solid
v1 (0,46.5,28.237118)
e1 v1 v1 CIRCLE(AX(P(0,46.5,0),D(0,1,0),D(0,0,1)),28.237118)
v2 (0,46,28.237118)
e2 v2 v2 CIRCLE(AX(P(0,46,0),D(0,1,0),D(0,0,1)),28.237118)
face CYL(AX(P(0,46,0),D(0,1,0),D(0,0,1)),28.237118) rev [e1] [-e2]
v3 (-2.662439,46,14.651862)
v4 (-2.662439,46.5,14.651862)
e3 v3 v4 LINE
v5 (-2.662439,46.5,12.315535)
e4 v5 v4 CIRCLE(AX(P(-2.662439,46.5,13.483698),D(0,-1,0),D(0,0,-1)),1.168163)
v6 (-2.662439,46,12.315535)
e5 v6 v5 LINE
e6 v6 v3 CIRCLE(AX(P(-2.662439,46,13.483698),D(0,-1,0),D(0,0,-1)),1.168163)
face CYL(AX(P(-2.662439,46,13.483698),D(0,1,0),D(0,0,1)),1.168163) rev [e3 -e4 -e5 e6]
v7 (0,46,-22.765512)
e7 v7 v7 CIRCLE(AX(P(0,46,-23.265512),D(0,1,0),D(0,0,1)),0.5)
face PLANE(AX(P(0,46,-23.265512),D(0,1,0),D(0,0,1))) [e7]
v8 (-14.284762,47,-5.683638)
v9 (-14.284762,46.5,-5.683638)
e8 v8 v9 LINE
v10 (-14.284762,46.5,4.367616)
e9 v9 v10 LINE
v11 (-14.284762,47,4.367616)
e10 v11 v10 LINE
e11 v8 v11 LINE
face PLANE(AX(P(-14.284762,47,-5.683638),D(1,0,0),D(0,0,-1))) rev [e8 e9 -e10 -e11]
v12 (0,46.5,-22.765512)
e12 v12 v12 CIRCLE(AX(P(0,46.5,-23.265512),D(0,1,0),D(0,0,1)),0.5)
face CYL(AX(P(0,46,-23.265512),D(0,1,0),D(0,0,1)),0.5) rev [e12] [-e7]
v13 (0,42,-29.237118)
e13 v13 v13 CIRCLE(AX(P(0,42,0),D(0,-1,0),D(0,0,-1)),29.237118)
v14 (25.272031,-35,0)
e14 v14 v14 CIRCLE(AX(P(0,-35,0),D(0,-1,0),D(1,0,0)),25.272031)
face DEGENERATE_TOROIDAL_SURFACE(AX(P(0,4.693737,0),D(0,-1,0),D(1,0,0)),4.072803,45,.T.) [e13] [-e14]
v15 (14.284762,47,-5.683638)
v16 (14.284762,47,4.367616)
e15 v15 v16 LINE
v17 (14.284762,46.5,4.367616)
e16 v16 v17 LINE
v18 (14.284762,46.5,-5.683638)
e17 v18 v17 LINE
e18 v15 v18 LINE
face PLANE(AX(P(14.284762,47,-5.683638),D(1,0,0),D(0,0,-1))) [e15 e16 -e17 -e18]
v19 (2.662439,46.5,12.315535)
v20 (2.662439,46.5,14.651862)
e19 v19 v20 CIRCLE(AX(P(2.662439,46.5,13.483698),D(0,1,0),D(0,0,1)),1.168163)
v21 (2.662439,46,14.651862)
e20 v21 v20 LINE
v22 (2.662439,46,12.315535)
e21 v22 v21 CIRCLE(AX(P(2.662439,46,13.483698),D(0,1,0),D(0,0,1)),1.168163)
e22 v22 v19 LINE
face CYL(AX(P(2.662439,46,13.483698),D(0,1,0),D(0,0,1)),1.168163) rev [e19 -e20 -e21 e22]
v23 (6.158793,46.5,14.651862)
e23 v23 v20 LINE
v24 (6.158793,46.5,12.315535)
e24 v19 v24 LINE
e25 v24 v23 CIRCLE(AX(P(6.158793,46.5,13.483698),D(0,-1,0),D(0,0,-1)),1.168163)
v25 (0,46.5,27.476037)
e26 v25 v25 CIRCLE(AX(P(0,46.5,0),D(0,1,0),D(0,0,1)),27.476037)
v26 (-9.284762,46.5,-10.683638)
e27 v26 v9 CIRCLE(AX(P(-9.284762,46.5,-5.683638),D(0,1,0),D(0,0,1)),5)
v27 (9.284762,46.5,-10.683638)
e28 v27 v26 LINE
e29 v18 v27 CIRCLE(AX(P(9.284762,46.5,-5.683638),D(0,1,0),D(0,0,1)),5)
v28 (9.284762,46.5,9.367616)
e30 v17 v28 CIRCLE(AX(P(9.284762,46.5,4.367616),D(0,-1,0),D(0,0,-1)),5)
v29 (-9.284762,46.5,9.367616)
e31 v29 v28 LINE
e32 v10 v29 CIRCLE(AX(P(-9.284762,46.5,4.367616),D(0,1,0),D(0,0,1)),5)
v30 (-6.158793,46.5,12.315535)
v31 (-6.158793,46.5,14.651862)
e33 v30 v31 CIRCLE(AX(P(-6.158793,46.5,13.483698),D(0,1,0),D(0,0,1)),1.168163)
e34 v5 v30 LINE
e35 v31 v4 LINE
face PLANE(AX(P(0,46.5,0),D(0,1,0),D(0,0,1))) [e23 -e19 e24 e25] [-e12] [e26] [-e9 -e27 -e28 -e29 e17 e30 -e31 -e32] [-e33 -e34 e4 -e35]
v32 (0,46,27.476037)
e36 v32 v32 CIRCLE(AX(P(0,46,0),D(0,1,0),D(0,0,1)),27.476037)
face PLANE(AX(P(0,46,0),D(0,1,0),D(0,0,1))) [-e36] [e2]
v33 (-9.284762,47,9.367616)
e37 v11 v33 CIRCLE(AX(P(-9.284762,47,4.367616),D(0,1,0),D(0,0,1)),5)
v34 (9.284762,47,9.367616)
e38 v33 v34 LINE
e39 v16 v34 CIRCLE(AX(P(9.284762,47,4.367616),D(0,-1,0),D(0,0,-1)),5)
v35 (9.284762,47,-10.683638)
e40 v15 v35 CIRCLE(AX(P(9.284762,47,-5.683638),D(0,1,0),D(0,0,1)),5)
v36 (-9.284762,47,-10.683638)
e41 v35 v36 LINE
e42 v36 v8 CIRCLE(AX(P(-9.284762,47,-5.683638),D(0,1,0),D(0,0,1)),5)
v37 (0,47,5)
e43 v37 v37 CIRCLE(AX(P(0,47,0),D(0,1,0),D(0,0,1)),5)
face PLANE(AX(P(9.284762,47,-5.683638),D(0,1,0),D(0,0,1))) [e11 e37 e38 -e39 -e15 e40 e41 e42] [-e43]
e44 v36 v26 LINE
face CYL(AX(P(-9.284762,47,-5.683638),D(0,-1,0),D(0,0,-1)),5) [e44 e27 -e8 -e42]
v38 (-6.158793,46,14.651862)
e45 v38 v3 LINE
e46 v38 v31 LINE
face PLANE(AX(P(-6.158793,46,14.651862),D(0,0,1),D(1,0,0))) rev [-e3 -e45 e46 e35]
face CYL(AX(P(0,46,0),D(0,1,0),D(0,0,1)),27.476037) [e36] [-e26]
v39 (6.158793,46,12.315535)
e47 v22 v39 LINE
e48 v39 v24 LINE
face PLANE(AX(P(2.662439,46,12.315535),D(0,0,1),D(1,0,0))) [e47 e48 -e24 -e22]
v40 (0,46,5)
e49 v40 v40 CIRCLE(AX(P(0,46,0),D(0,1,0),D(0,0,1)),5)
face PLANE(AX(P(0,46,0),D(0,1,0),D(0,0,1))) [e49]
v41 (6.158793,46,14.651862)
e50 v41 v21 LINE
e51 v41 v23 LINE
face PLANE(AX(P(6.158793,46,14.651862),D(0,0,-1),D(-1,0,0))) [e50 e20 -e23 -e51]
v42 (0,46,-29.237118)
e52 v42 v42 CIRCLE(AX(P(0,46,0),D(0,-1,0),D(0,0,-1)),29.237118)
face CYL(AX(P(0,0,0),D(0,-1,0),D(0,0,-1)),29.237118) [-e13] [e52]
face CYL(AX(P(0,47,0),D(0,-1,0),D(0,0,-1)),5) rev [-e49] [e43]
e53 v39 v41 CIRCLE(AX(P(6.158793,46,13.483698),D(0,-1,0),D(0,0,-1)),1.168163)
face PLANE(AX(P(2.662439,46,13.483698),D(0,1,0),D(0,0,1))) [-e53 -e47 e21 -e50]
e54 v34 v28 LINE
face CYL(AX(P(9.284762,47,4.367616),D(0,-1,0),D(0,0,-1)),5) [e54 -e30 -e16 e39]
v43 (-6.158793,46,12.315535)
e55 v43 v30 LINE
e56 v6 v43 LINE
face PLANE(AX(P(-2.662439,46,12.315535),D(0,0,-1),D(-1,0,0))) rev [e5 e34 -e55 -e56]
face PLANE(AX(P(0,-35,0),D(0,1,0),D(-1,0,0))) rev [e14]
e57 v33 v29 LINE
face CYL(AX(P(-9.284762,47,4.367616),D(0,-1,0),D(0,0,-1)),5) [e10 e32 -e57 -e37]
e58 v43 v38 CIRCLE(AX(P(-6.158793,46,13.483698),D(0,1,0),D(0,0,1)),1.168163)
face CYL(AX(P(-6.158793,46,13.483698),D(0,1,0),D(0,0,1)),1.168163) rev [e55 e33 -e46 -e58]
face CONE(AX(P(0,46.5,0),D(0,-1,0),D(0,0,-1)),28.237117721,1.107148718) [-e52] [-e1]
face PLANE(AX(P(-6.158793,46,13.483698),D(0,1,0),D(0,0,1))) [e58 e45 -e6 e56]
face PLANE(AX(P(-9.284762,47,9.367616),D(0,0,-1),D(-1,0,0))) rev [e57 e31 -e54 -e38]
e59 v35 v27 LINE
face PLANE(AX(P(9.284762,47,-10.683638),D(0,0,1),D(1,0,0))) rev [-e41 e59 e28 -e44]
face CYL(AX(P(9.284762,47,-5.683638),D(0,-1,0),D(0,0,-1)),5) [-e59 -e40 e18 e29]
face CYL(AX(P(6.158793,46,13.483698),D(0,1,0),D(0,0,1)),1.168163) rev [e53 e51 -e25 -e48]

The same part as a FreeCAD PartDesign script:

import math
import FreeCAD as App
import Part
import Sketcher
Q = App.Units.Quantity


def add_polygon(sketch, points):
    """Adds a closed chain of lines whose ends are joined by coincident constraints."""
    first, n = sketch.GeometryCount, len(points)
    for a, b in zip(points, points[1:] + points[:1]):
        sketch.addGeometry(Part.LineSegment(App.Vector(*a, 0), App.Vector(*b, 0)), False)
    for i in range(n):
        sketch.addConstraint(Sketcher.Constraint("Coincident", first + i, 2, first + (i + 1) % n, 1))

doc = App.newDocument("Part")
body = doc.addObject("PartDesign::Body", "Body")

# Sketch on XY plane
sketch1 = doc.addObject("Sketcher::SketchObject", "Sketch")
body.addObject(sketch1)
sketch1.AttachmentSupport = (doc.XY_Plane, [""])
sketch1.MapMode = "FlatFace"
sketch1.addGeometry(Part.LineSegment(App.Vector(0, -35, 0), App.Vector(0, 50, 0)), False)
sketch1.addGeometry(Part.ArcOfCircle(Part.Circle(App.Vector(-4, 5, 0), App.Vector(0, 0, 1), 45), math.radians(85), math.radians(242)), False)
sketch1.addGeometry(Part.LineSegment(App.Vector(-25, -35, 0), App.Vector(0, -35, 0)), False)
sketch1.addConstraint(Sketcher.Constraint("Coincident", 0, 2, 1, 1))
sketch1.addConstraint(Sketcher.Constraint("Coincident", 1, 2, 2, 1))
sketch1.addConstraint(Sketcher.Constraint("Coincident", 2, 2, 0, 1))
sketch1.addConstraint(Sketcher.Constraint("Vertical", 0))
sketch1.addConstraint(Sketcher.Constraint("Horizontal", 2))
sketch1.addConstraint(Sketcher.Constraint("PointOnObject", 0, 2, -2))
sketch1.addConstraint(Sketcher.Constraint("Radius", 1, Q("45 mm")))
sketch1.addConstraint(Sketcher.Constraint("DistanceY", 1, 2, -1, 1, Q("35 mm")))
sketch1.addConstraint(Sketcher.Constraint("DistanceX", 2, 1, 2, 2, Q("25.272031 mm")))
sketch1.addConstraint(Sketcher.Constraint("DistanceY", 0, 1, 0, 2, Q("84.50905 mm")))
revolution = doc.addObject("PartDesign::Revolution", "Revolution")
body.addObject(revolution)
revolution.Profile = sketch1
revolution.ReferenceAxis = (sketch1, ["V_Axis"])
revolution.Angle = 360

# Sketch on XY plane
sketch2 = doc.addObject("Sketcher::SketchObject", "Sketch001")
body.addObject(sketch2)
sketch2.AttachmentSupport = (doc.XY_Plane, [""])
sketch2.MapMode = "FlatFace"
add_polygon(sketch2, [(58, 42), (58, 50), (-50, 50), (-50, 42)])  # lines 0-3
sketch2.addConstraint(Sketcher.Constraint("Vertical", 0))
sketch2.addConstraint(Sketcher.Constraint("Horizontal", 1))
sketch2.addConstraint(Sketcher.Constraint("Vertical", 2))
sketch2.addConstraint(Sketcher.Constraint("Horizontal", 3))
sketch2.addConstraint(Sketcher.Constraint("DistanceY", 0, 1, 0, 2, Q("8 mm")))
sketch2.addConstraint(Sketcher.Constraint("DistanceY", -1, 1, 0, 2, Q("50 mm")))
sketch2.addConstraint(Sketcher.Constraint("DistanceX", 1, 2, 1, 1, Q("107.142375 mm")))
sketch2.addConstraint(Sketcher.Constraint("DistanceX", -1, 1, 0, 2, Q("57.527772 mm")))
pocket1 = doc.addObject("PartDesign::Pocket", "Pocket")
body.addObject(pocket1)
pocket1.Profile = sketch2
pocket1.Type = "ThroughAll"
pocket1.Midplane = True

# Sketch on XY plane
sketch3 = doc.addObject("Sketcher::SketchObject", "Sketch002")
body.addObject(sketch3)
sketch3.AttachmentSupport = (doc.XY_Plane, [""])
sketch3.MapMode = "FlatFace"
add_polygon(sketch3, [(-29.2, 46), (-29.2, 42), (-28.2, 42), (-28.2, 46.5)])  # lines 0-3
sketch3.addConstraint(Sketcher.Constraint("Vertical", 0))
sketch3.addConstraint(Sketcher.Constraint("Horizontal", 1))
sketch3.addConstraint(Sketcher.Constraint("Vertical", 2))
sketch3.addConstraint(Sketcher.Constraint("DistanceX", 1, 1, 1, 2, Q("1 mm")))
sketch3.addConstraint(Sketcher.Constraint("DistanceY", 0, 2, 0, 1, Q("4 mm")))
sketch3.addConstraint(Sketcher.Constraint("DistanceY", 2, 1, 2, 2, Q("4.5 mm")))
sketch3.addConstraint(Sketcher.Constraint("DistanceY", -1, 1, 0, 2, Q("42 mm")))
sketch3.addConstraint(Sketcher.Constraint("DistanceX", 0, 2, -1, 1, Q("29.237118 mm")))
revolution2 = doc.addObject("PartDesign::Revolution", "Revolution001")
body.addObject(revolution2)
revolution2.Profile = sketch3
revolution2.ReferenceAxis = (sketch3, ["V_Axis"])
revolution2.Angle = 360

# Sketch on XZ plane
sketch4 = doc.addObject("Sketcher::SketchObject", "Sketch003")
body.addObject(sketch4)
sketch4.AttachmentSupport = (doc.XZ_Plane, [""])
sketch4.MapMode = "FlatFace"
sketch4.AttachmentOffset = App.Placement(App.Vector(0, 0, -42), App.Rotation())
sketch4.addGeometry(Part.Circle(App.Vector(0, 0, 0), App.Vector(0, 0, 1), 28), False)
sketch4.addConstraint(Sketcher.Constraint("Coincident", 0, 3, -1, 1))
sketch4.addConstraint(Sketcher.Constraint("Diameter", 0, Q("56.474235 mm")))
pad1 = doc.addObject("PartDesign::Pad", "Pad")
body.addObject(pad1)
pad1.Profile = sketch4
pad1.Length = 4.5
pad1.Reversed = True

# Sketch on XZ plane
sketch5 = doc.addObject("Sketcher::SketchObject", "Sketch004")
body.addObject(sketch5)
sketch5.AttachmentSupport = (doc.XZ_Plane, [""])
sketch5.MapMode = "FlatFace"
sketch5.AttachmentOffset = App.Placement(App.Vector(0, 0, -46.5), App.Rotation())
sketch5.addGeometry(Part.Circle(App.Vector(0, 0, 0), App.Vector(0, 0, 1), 28), False)
sketch5.addGeometry(Part.Circle(App.Vector(0, 0, 0), App.Vector(0, 0, 1), 27), False)
sketch5.addConstraint(Sketcher.Constraint("Coincident", 0, 3, -1, 1))
sketch5.addConstraint(Sketcher.Constraint("Coincident", 1, 3, -1, 1))
sketch5.addConstraint(Sketcher.Constraint("Diameter", 0, Q("56.474235 mm")))
sketch5.addConstraint(Sketcher.Constraint("Diameter", 1, Q("54.952075 mm")))
pocket2 = doc.addObject("PartDesign::Pocket", "Pocket001")
body.addObject(pocket2)
pocket2.Profile = sketch5
pocket2.Length = 0.5
pocket2.Reversed = True

# Sketch on XZ plane
sketch6 = doc.addObject("Sketcher::SketchObject", "Sketch005")
body.addObject(sketch6)
sketch6.AttachmentSupport = (doc.XZ_Plane, [""])
sketch6.MapMode = "FlatFace"
sketch6.AttachmentOffset = App.Placement(App.Vector(0, 0, -46.5), App.Rotation())
sketch6.addGeometry(Part.LineSegment(App.Vector(-2.7, 12.3, 0), App.Vector(-6.2, 12.3, 0)), False)
sketch6.addGeometry(Part.ArcOfCircle(Part.Circle(App.Vector(-6.2, 13.5, 0), App.Vector(0, 0, 1), 1.2), math.radians(90), math.radians(270)), False)
sketch6.addGeometry(Part.LineSegment(App.Vector(-6.2, 14.7, 0), App.Vector(-2.7, 14.7, 0)), False)
sketch6.addGeometry(Part.ArcOfCircle(Part.Circle(App.Vector(-2.7, 13.5, 0), App.Vector(0, 0, 1), 1.2), math.radians(-90), math.radians(90)), False)
sketch6.addConstraint(Sketcher.Constraint("Tangent", 0, 2, 1, 2))
sketch6.addConstraint(Sketcher.Constraint("Tangent", 1, 1, 2, 1))
sketch6.addConstraint(Sketcher.Constraint("Tangent", 2, 2, 3, 2))
sketch6.addConstraint(Sketcher.Constraint("Tangent", 3, 1, 0, 1))
sketch6.addConstraint(Sketcher.Constraint("Horizontal", 0))
sketch6.addConstraint(Sketcher.Constraint("Horizontal", 2))
sketch6.addConstraint(Sketcher.Constraint("Radius", 1, Q("1.168163 mm")))
sketch6.addConstraint(Sketcher.Constraint("DistanceY", -1, 1, 1, 3, Q("13.483698 mm")))
sketch6.addConstraint(Sketcher.Constraint("DistanceX", 0, 2, 0, 1, Q("3.496354 mm")))
sketch6.addConstraint(Sketcher.Constraint("DistanceX", 3, 3, -1, 1, Q("2.662439 mm")))
pocket3 = doc.addObject("PartDesign::Pocket", "Pocket002")
body.addObject(pocket3)
pocket3.Profile = sketch6
pocket3.Length = 0.5
pocket3.Reversed = True

# Sketch on XZ plane
sketch7 = doc.addObject("Sketcher::SketchObject", "Sketch006")
body.addObject(sketch7)
sketch7.AttachmentSupport = (doc.XZ_Plane, [""])
sketch7.MapMode = "FlatFace"
sketch7.AttachmentOffset = App.Placement(App.Vector(0, 0, -46.5), App.Rotation())
sketch7.addGeometry(Part.LineSegment(App.Vector(6.2, 12.3, 0), App.Vector(2.7, 12.3, 0)), False)
sketch7.addGeometry(Part.ArcOfCircle(Part.Circle(App.Vector(2.7, 13.5, 0), App.Vector(0, 0, 1), 1.2), math.radians(90), math.radians(270)), False)
sketch7.addGeometry(Part.LineSegment(App.Vector(2.7, 14.7, 0), App.Vector(6.2, 14.7, 0)), False)
sketch7.addGeometry(Part.ArcOfCircle(Part.Circle(App.Vector(6.2, 13.5, 0), App.Vector(0, 0, 1), 1.2), math.radians(-90), math.radians(90)), False)
sketch7.addConstraint(Sketcher.Constraint("Tangent", 0, 2, 1, 2))
sketch7.addConstraint(Sketcher.Constraint("Tangent", 1, 1, 2, 1))
sketch7.addConstraint(Sketcher.Constraint("Tangent", 2, 2, 3, 2))
sketch7.addConstraint(Sketcher.Constraint("Tangent", 3, 1, 0, 1))
sketch7.addConstraint(Sketcher.Constraint("Horizontal", 0))
sketch7.addConstraint(Sketcher.Constraint("Horizontal", 2))
sketch7.addConstraint(Sketcher.Constraint("Radius", 1, Q("1.168163 mm")))
sketch7.addConstraint(Sketcher.Constraint("DistanceY", -1, 1, 1, 3, Q("13.483698 mm")))
sketch7.addConstraint(Sketcher.Constraint("DistanceX", 0, 2, 0, 1, Q("3.496354 mm")))
sketch7.addConstraint(Sketcher.Constraint("DistanceX", -1, 1, 1, 3, Q("2.662439 mm")))
pocket4 = doc.addObject("PartDesign::Pocket", "Pocket003")
body.addObject(pocket4)
pocket4.Profile = sketch7
pocket4.Length = 0.5
pocket4.Reversed = True

# Sketch on XZ plane
sketch8 = doc.addObject("Sketcher::SketchObject", "Sketch007")
body.addObject(sketch8)
sketch8.AttachmentSupport = (doc.XZ_Plane, [""])
sketch8.MapMode = "FlatFace"
sketch8.AttachmentOffset = App.Placement(App.Vector(0, 0, -46.5), App.Rotation())
sketch8.addGeometry(Part.LineSegment(App.Vector(9, -11, 0), App.Vector(-9, -11, 0)), False)
sketch8.addGeometry(Part.ArcOfCircle(Part.Circle(App.Vector(-9, -6, 0), App.Vector(0, 0, 1), 5), math.radians(180), math.radians(270)), False)
sketch8.addGeometry(Part.LineSegment(App.Vector(-14, -6, 0), App.Vector(-14, 4, 0)), False)
sketch8.addGeometry(Part.ArcOfCircle(Part.Circle(App.Vector(-9, 4, 0), App.Vector(0, 0, 1), 5), math.radians(90), math.radians(180)), False)
sketch8.addGeometry(Part.LineSegment(App.Vector(-9, 9, 0), App.Vector(9, 9, 0)), False)
sketch8.addGeometry(Part.ArcOfCircle(Part.Circle(App.Vector(9, 4, 0), App.Vector(0, 0, 1), 5), math.radians(0), math.radians(90)), False)
sketch8.addGeometry(Part.LineSegment(App.Vector(14, 4, 0), App.Vector(14, -6, 0)), False)
sketch8.addGeometry(Part.ArcOfCircle(Part.Circle(App.Vector(9, -6, 0), App.Vector(0, 0, 1), 5), math.radians(-90), math.radians(0)), False)
sketch8.addConstraint(Sketcher.Constraint("Tangent", 0, 2, 1, 2))
sketch8.addConstraint(Sketcher.Constraint("Tangent", 1, 1, 2, 1))
sketch8.addConstraint(Sketcher.Constraint("Tangent", 2, 2, 3, 2))
sketch8.addConstraint(Sketcher.Constraint("Tangent", 3, 1, 4, 1))
sketch8.addConstraint(Sketcher.Constraint("Tangent", 4, 2, 5, 2))
sketch8.addConstraint(Sketcher.Constraint("Tangent", 5, 1, 6, 1))
sketch8.addConstraint(Sketcher.Constraint("Tangent", 6, 2, 7, 2))
sketch8.addConstraint(Sketcher.Constraint("Tangent", 7, 1, 0, 1))
sketch8.addConstraint(Sketcher.Constraint("Horizontal", 0))
sketch8.addConstraint(Sketcher.Constraint("Vertical", 2))
sketch8.addConstraint(Sketcher.Constraint("Horizontal", 4))
sketch8.addConstraint(Sketcher.Constraint("Vertical", 6))
sketch8.addConstraint(Sketcher.Constraint("Equal", 1, 3))
sketch8.addConstraint(Sketcher.Constraint("Equal", 3, 5))
sketch8.addConstraint(Sketcher.Constraint("Equal", 5, 7))
sketch8.addConstraint(Sketcher.Constraint("Radius", 1, Q("5 mm")))
sketch8.addConstraint(Sketcher.Constraint("DistanceX", 0, 2, 0, 1, Q("18.569524 mm")))
sketch8.addConstraint(Sketcher.Constraint("DistanceY", 2, 1, 2, 2, Q("10.051254 mm")))
sketch8.addConstraint(Sketcher.Constraint("DistanceX", 1, 3, -1, 1, Q("9.284762 mm")))
sketch8.addConstraint(Sketcher.Constraint("DistanceY", 1, 3, -1, 1, Q("5.683638 mm")))
pad2 = doc.addObject("PartDesign::Pad", "Pad001")
body.addObject(pad2)
pad2.Profile = sketch8
pad2.Length = 0.5
pad2.Reversed = True

# Sketch on XZ plane
sketch9 = doc.addObject("Sketcher::SketchObject", "Sketch008")
body.addObject(sketch9)
sketch9.AttachmentSupport = (doc.XZ_Plane, [""])
sketch9.MapMode = "FlatFace"
sketch9.AttachmentOffset = App.Placement(App.Vector(0, 0, -46.5), App.Rotation())
sketch9.addGeometry(Part.Circle(App.Vector(0, 0, 0), App.Vector(0, 0, 1), 5), False)
sketch9.addConstraint(Sketcher.Constraint("Coincident", 0, 3, -1, 1))
sketch9.addConstraint(Sketcher.Constraint("Diameter", 0, Q("10 mm")))
pocket5 = doc.addObject("PartDesign::Pocket", "Pocket004")
body.addObject(pocket5)
pocket5.Profile = sketch9
pocket5.Type = "TwoLengths"
pocket5.Length = 0.5
pocket5.Length2 = 0.5

# Sketch on XZ plane
sketch10 = doc.addObject("Sketcher::SketchObject", "Sketch009")
body.addObject(sketch10)
sketch10.AttachmentSupport = (doc.XZ_Plane, [""])
sketch10.MapMode = "FlatFace"
sketch10.AttachmentOffset = App.Placement(App.Vector(0, 0, -46.5), App.Rotation())
sketch10.addGeometry(Part.Circle(App.Vector(0, -23.3, 0), App.Vector(0, 0, 1), 0.5), False)
sketch10.addConstraint(Sketcher.Constraint("PointOnObject", 0, 3, -2))
sketch10.addConstraint(Sketcher.Constraint("Diameter", 0, Q("1 mm")))
sketch10.addConstraint(Sketcher.Constraint("DistanceY", 0, 3, -1, 1, Q("23.265512 mm")))
pocket6 = doc.addObject("PartDesign::Pocket", "Pocket005")
body.addObject(pocket6)
pocket6.Profile = sketch10
pocket6.Length = 0.5
pocket6.Reversed = True

doc.recompute()
